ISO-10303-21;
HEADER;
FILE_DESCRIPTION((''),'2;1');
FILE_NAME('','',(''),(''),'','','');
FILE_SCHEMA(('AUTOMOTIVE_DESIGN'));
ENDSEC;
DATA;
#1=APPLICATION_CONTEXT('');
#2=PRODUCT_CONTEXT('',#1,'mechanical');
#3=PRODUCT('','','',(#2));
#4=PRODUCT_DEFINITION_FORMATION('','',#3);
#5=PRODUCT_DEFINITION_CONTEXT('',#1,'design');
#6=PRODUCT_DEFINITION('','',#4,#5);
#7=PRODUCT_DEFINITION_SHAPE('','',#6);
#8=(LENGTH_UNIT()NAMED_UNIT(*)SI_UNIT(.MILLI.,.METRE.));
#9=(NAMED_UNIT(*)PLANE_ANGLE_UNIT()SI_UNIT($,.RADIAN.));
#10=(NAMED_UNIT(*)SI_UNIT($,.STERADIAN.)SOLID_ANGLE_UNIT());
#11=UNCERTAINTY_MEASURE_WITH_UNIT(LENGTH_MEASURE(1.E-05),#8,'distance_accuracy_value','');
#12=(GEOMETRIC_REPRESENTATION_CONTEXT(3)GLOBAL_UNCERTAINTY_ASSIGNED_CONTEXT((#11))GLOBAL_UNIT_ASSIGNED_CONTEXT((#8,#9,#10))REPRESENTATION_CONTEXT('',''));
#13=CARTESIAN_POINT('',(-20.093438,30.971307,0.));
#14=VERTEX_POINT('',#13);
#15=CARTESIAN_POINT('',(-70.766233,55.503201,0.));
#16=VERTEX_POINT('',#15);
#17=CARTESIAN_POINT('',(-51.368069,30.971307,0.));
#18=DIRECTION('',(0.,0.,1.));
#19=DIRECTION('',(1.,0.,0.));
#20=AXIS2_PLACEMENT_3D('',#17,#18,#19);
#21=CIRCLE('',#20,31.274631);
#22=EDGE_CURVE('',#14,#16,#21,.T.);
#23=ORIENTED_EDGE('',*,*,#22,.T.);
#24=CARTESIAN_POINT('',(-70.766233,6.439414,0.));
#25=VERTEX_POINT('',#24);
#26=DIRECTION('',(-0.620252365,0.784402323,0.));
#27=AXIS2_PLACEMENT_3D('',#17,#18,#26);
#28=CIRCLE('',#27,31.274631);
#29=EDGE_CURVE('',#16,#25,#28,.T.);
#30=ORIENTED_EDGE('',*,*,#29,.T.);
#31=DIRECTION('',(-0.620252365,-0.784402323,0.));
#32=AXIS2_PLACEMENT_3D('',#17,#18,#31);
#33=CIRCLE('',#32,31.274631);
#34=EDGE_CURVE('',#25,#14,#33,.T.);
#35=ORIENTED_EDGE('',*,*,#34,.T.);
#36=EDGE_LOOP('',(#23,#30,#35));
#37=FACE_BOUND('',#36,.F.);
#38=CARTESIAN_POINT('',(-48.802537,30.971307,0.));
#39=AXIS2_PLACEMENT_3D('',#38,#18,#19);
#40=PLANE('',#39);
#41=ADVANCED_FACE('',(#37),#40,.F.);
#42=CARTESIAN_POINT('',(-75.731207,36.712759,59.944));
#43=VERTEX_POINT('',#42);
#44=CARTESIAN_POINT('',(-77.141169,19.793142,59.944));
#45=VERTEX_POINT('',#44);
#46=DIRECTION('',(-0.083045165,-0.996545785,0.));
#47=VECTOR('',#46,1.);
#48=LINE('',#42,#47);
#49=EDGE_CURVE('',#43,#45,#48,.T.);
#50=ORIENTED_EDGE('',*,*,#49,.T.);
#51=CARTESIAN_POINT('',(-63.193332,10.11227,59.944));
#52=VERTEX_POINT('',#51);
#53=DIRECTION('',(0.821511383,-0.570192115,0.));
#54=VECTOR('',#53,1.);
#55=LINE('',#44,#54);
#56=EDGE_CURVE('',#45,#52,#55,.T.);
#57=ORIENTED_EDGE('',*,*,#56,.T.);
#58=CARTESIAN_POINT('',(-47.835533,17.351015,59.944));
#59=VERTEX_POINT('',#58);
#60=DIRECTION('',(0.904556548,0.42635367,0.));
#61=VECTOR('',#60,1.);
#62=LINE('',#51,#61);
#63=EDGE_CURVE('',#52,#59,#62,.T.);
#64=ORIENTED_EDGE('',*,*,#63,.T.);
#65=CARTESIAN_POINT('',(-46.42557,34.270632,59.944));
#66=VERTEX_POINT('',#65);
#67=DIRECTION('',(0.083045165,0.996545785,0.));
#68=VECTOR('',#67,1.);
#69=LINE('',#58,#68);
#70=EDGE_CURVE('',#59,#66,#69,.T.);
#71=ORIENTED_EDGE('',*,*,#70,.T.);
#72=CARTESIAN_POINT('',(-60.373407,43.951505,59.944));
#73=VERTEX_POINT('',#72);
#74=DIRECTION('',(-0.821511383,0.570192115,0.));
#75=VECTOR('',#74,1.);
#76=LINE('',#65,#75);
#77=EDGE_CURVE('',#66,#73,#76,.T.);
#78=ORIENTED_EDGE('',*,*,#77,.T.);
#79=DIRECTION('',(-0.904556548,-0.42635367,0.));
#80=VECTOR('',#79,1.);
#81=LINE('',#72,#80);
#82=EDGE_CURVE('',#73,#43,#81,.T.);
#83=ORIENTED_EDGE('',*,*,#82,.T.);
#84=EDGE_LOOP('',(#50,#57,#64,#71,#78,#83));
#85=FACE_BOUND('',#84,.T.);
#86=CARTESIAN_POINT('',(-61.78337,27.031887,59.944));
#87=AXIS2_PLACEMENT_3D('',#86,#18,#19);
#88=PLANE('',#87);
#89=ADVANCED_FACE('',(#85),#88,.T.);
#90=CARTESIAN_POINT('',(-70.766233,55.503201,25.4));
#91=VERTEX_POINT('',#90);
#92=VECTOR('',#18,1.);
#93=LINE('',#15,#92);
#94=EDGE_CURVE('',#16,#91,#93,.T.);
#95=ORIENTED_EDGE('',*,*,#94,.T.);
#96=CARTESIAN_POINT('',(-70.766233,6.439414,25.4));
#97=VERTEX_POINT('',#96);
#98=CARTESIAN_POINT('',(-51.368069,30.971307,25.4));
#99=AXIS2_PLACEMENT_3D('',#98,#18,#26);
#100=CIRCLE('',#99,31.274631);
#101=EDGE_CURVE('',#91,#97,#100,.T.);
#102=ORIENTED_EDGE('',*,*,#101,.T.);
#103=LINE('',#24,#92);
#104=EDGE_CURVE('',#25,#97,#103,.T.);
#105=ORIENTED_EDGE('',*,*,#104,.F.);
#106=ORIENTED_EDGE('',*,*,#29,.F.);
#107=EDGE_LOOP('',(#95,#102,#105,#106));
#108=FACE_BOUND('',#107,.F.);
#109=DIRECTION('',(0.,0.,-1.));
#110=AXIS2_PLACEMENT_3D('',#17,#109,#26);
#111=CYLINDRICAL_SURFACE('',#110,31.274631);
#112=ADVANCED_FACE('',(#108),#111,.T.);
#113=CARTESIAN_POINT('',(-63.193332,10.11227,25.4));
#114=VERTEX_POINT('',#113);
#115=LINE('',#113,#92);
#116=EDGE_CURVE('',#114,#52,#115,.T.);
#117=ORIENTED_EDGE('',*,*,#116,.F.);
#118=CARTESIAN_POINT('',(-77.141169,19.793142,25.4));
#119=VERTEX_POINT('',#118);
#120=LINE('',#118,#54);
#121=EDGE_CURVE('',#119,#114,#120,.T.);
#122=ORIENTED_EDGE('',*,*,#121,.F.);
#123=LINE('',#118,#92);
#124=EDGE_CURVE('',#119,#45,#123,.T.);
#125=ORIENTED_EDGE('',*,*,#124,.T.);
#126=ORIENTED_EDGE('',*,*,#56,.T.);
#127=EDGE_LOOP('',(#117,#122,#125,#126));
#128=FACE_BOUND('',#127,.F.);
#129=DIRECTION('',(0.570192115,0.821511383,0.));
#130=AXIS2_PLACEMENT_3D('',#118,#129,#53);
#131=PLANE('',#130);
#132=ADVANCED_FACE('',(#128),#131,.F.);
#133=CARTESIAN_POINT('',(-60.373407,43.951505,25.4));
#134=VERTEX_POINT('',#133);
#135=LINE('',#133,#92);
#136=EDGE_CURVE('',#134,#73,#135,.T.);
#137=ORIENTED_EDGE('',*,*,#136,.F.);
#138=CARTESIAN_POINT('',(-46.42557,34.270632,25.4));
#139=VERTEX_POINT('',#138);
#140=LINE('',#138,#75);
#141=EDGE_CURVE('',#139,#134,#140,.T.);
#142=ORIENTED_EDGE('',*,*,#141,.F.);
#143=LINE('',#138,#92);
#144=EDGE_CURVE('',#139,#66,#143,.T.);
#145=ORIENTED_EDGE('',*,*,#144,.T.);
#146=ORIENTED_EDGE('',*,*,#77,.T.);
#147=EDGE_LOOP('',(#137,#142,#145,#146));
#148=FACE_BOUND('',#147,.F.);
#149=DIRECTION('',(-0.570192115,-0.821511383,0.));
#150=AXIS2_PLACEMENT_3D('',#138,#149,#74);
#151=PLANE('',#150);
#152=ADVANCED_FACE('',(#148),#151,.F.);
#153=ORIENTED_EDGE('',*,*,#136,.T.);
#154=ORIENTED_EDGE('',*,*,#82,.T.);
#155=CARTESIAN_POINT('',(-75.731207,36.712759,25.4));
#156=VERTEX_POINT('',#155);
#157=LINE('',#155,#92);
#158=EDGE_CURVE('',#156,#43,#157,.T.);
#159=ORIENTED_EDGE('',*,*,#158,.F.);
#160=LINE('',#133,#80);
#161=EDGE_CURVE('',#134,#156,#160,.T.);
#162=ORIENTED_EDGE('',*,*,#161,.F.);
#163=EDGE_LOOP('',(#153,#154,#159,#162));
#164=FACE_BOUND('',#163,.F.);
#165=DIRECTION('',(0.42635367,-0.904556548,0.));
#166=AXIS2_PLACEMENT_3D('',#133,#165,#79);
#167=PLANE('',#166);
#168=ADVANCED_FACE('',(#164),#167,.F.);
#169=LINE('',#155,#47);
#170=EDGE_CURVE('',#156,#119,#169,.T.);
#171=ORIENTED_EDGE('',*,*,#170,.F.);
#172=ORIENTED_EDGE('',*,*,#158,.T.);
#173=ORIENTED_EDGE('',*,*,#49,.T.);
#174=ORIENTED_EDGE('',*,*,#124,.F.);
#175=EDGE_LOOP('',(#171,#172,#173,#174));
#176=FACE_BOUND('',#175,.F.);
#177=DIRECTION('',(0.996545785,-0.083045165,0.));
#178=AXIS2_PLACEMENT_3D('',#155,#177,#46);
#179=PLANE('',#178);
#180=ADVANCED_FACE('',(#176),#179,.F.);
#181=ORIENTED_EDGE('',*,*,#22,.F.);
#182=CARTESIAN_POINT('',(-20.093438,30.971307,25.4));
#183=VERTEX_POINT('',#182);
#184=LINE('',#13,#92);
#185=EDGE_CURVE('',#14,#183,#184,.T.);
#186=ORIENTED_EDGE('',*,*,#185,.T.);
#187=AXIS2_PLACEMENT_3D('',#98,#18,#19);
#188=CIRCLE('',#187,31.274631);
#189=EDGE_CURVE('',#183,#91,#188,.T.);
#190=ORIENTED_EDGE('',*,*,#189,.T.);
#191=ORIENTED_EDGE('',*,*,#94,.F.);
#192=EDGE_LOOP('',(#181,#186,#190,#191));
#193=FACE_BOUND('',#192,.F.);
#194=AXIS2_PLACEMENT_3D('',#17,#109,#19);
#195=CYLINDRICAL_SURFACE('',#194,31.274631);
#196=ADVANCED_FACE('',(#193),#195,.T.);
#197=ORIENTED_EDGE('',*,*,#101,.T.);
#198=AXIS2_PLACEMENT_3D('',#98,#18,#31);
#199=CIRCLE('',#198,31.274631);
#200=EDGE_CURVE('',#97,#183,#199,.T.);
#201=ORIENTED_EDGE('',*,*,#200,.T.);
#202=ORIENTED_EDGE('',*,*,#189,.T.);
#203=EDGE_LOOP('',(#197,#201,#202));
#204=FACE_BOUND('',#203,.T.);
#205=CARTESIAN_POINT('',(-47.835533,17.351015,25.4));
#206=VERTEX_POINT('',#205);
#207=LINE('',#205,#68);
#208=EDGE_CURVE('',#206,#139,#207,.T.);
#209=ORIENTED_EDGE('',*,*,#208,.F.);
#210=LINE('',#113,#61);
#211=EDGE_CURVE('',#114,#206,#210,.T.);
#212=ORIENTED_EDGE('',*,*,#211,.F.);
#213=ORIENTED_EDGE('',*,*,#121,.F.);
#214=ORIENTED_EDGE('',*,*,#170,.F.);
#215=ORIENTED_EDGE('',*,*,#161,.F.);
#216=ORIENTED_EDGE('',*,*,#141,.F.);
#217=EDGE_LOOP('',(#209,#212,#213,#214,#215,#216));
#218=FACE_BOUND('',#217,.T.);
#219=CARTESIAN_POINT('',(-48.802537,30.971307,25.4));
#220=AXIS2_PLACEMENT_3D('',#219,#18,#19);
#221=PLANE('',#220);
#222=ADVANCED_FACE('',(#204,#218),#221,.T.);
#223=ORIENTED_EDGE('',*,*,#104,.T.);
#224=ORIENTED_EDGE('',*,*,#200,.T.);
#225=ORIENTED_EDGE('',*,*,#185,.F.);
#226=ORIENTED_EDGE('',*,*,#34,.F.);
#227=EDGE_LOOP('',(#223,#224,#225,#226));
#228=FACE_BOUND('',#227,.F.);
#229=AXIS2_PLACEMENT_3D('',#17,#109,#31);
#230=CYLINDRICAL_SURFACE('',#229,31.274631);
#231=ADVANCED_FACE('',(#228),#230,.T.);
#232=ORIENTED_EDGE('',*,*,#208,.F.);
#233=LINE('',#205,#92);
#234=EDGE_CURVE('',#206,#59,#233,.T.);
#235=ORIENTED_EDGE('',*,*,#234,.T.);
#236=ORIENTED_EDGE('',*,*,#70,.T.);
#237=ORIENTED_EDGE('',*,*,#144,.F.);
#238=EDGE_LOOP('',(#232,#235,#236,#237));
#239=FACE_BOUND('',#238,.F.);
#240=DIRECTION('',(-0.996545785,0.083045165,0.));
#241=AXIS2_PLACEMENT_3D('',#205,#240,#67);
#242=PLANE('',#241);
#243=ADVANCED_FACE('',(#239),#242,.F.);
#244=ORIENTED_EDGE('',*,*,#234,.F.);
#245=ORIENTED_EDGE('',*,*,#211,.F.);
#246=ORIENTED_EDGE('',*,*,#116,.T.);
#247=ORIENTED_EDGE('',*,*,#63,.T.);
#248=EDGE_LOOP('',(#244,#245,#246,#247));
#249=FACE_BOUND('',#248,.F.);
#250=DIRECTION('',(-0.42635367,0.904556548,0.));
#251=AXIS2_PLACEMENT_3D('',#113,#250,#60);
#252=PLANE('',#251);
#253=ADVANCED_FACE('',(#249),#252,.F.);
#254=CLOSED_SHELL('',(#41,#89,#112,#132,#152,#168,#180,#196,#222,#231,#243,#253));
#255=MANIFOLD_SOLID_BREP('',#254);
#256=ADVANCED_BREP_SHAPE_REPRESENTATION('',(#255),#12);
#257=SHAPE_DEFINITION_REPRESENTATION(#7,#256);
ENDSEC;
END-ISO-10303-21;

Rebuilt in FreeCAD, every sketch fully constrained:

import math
import FreeCAD as App
import Part
import Sketcher

V = App.Vector
Q = App.Units.Quantity

doc = App.newDocument("Part")
params = doc.addObject("Spreadsheet::Sheet", "Params")
for row, (alias, value) in enumerate([
    ("pad1_length", "1 in"),
    ("pad2_length", "1.36 in"),
], start=1):
    params.set(f"A{row}", alias)
    params.set(f"B{row}", "=" + value)
    params.setAlias(f"B{row}", alias)

body = doc.addObject("PartDesign::Body", "Body")

# Sketch on XY plane
sketch1 = body.newObject("Sketcher::SketchObject", "Sketch")
sketch1.AttachmentSupport = (doc.getObject("XY_Plane"), [""])
sketch1.MapMode = "FlatFace"
sketch1.addGeometry(Part.ArcOfCircle(Part.Circle(V(-51.368069, 30.971307, 0), V(0, 0, 1), 31.274631), math.radians(-128.334566), math.radians(0)), False)
sketch1.addGeometry(Part.ArcOfCircle(Part.Circle(V(-51.368069, 30.971307, 0), V(0, 0, 1), 31.274631), math.radians(0), math.radians(128.334566)), False)
sketch1.addGeometry(Part.ArcOfCircle(Part.Circle(V(-51.368069, 30.971307, 0), V(0, 0, 1), 31.274631), math.radians(128.334566), math.radians(231.665434)), False)
sketch1.addConstraint(Sketcher.Constraint("Tangent", 0, 2, 1, 1))
sketch1.addConstraint(Sketcher.Constraint("Tangent", 1, 2, 2, 1))
sketch1.addConstraint(Sketcher.Constraint("Tangent", 2, 2, 0, 1))
sketch1.addConstraint(Sketcher.Constraint("Horizontal", 2, 3, 0, 2))
sketch1.addConstraint(Sketcher.Constraint("Vertical", 1, 2, 2, 2))
sketch1.addConstraint(Sketcher.Constraint("Radius", 0, Q("31.274631 mm")))
sketch1.addConstraint(Sketcher.Constraint("DistanceY", -1, 1, 1, 2, Q("55.503201 mm")))
sketch1.addConstraint(Sketcher.Constraint("DistanceX", 0, 3, -1, 1, Q("51.368069 mm")))
sketch1.addConstraint(Sketcher.Constraint("DistanceY", -1, 1, 0, 3, Q("30.971307 mm")))
pad1 = body.newObject("PartDesign::Pad", "Pad")
pad1.Profile = sketch1
pad1.setExpression("Length", "Params.pad1_length")

# Sketch on XY plane
sketch2 = body.newObject("Sketcher::SketchObject", "Sketch001")
sketch2.AttachmentSupport = (doc.getObject("XY_Plane"), [""])
sketch2.MapMode = "FlatFace"
sketch2.AttachmentOffset = App.Placement(V(0, 0, 1 * 25.4), App.Rotation())
sketch2.addGeometry(Part.LineSegment(V(-63.193332, 10.11227, 0), V(-47.835533, 17.351015, 0)), False)
sketch2.addGeometry(Part.LineSegment(V(-47.835533, 17.351015, 0), V(-46.42557, 34.270632, 0)), False)
sketch2.addGeometry(Part.LineSegment(V(-46.42557, 34.270632, 0), V(-60.373407, 43.951505, 0)), False)
sketch2.addGeometry(Part.LineSegment(V(-60.373407, 43.951505, 0), V(-75.731207, 36.712759, 0)), False)
sketch2.addGeometry(Part.LineSegment(V(-75.731207, 36.712759, 0), V(-77.141169, 19.793142, 0)), False)
sketch2.addGeometry(Part.LineSegment(V(-77.141169, 19.793142, 0), V(-63.193332, 10.11227, 0)), False)
sketch2.addConstraint(Sketcher.Constraint("Coincident", 0, 2, 1, 1))
sketch2.addConstraint(Sketcher.Constraint("Coincident", 1, 2, 2, 1))
sketch2.addConstraint(Sketcher.Constraint("Coincident", 2, 2, 3, 1))
sketch2.addConstraint(Sketcher.Constraint("Coincident", 3, 2, 4, 1))
sketch2.addConstraint(Sketcher.Constraint("Coincident", 4, 2, 5, 1))
sketch2.addConstraint(Sketcher.Constraint("Coincident", 5, 2, 0, 1))
sketch2.addConstraint(Sketcher.Constraint("Parallel", 0, 3))
sketch2.addConstraint(Sketcher.Constraint("Parallel", 1, 4))
sketch2.addConstraint(Sketcher.Constraint("Parallel", 2, 5))
sketch2.addConstraint(Sketcher.Constraint("Equal", 0, 1))
sketch2.addConstraint(Sketcher.Constraint("Equal", 1, 2))
sketch2.addConstraint(Sketcher.Constraint("Equal", 2, 3))
sketch2.addConstraint(Sketcher.Constraint("DistanceX", 3, 2, 2, 2, Q("15.3578 mm")))
sketch2.addConstraint(Sketcher.Constraint("DistanceX", 4, 2, 1, 2, Q("30.715599 mm")))
sketch2.addConstraint(Sketcher.Constraint("DistanceX", 1, 2, -1, 1, Q("46.42557 mm")))
sketch2.addConstraint(Sketcher.Constraint("DistanceY", -1, 1, 3, 2, Q("36.712759 mm")))
sketch2.addConstraint(Sketcher.Constraint("DistanceY", -1, 1, 5, 2, Q("10.11227 mm")))
sketch2.addConstraint(Sketcher.Constraint("DistanceY", 4, 2, 1, 2, Q("14.47749 mm")))
pad2 = body.newObject("PartDesign::Pad", "Pad001")
pad2.Profile = sketch2
pad2.setExpression("Length", "Params.pad2_length")

doc.recompute()
